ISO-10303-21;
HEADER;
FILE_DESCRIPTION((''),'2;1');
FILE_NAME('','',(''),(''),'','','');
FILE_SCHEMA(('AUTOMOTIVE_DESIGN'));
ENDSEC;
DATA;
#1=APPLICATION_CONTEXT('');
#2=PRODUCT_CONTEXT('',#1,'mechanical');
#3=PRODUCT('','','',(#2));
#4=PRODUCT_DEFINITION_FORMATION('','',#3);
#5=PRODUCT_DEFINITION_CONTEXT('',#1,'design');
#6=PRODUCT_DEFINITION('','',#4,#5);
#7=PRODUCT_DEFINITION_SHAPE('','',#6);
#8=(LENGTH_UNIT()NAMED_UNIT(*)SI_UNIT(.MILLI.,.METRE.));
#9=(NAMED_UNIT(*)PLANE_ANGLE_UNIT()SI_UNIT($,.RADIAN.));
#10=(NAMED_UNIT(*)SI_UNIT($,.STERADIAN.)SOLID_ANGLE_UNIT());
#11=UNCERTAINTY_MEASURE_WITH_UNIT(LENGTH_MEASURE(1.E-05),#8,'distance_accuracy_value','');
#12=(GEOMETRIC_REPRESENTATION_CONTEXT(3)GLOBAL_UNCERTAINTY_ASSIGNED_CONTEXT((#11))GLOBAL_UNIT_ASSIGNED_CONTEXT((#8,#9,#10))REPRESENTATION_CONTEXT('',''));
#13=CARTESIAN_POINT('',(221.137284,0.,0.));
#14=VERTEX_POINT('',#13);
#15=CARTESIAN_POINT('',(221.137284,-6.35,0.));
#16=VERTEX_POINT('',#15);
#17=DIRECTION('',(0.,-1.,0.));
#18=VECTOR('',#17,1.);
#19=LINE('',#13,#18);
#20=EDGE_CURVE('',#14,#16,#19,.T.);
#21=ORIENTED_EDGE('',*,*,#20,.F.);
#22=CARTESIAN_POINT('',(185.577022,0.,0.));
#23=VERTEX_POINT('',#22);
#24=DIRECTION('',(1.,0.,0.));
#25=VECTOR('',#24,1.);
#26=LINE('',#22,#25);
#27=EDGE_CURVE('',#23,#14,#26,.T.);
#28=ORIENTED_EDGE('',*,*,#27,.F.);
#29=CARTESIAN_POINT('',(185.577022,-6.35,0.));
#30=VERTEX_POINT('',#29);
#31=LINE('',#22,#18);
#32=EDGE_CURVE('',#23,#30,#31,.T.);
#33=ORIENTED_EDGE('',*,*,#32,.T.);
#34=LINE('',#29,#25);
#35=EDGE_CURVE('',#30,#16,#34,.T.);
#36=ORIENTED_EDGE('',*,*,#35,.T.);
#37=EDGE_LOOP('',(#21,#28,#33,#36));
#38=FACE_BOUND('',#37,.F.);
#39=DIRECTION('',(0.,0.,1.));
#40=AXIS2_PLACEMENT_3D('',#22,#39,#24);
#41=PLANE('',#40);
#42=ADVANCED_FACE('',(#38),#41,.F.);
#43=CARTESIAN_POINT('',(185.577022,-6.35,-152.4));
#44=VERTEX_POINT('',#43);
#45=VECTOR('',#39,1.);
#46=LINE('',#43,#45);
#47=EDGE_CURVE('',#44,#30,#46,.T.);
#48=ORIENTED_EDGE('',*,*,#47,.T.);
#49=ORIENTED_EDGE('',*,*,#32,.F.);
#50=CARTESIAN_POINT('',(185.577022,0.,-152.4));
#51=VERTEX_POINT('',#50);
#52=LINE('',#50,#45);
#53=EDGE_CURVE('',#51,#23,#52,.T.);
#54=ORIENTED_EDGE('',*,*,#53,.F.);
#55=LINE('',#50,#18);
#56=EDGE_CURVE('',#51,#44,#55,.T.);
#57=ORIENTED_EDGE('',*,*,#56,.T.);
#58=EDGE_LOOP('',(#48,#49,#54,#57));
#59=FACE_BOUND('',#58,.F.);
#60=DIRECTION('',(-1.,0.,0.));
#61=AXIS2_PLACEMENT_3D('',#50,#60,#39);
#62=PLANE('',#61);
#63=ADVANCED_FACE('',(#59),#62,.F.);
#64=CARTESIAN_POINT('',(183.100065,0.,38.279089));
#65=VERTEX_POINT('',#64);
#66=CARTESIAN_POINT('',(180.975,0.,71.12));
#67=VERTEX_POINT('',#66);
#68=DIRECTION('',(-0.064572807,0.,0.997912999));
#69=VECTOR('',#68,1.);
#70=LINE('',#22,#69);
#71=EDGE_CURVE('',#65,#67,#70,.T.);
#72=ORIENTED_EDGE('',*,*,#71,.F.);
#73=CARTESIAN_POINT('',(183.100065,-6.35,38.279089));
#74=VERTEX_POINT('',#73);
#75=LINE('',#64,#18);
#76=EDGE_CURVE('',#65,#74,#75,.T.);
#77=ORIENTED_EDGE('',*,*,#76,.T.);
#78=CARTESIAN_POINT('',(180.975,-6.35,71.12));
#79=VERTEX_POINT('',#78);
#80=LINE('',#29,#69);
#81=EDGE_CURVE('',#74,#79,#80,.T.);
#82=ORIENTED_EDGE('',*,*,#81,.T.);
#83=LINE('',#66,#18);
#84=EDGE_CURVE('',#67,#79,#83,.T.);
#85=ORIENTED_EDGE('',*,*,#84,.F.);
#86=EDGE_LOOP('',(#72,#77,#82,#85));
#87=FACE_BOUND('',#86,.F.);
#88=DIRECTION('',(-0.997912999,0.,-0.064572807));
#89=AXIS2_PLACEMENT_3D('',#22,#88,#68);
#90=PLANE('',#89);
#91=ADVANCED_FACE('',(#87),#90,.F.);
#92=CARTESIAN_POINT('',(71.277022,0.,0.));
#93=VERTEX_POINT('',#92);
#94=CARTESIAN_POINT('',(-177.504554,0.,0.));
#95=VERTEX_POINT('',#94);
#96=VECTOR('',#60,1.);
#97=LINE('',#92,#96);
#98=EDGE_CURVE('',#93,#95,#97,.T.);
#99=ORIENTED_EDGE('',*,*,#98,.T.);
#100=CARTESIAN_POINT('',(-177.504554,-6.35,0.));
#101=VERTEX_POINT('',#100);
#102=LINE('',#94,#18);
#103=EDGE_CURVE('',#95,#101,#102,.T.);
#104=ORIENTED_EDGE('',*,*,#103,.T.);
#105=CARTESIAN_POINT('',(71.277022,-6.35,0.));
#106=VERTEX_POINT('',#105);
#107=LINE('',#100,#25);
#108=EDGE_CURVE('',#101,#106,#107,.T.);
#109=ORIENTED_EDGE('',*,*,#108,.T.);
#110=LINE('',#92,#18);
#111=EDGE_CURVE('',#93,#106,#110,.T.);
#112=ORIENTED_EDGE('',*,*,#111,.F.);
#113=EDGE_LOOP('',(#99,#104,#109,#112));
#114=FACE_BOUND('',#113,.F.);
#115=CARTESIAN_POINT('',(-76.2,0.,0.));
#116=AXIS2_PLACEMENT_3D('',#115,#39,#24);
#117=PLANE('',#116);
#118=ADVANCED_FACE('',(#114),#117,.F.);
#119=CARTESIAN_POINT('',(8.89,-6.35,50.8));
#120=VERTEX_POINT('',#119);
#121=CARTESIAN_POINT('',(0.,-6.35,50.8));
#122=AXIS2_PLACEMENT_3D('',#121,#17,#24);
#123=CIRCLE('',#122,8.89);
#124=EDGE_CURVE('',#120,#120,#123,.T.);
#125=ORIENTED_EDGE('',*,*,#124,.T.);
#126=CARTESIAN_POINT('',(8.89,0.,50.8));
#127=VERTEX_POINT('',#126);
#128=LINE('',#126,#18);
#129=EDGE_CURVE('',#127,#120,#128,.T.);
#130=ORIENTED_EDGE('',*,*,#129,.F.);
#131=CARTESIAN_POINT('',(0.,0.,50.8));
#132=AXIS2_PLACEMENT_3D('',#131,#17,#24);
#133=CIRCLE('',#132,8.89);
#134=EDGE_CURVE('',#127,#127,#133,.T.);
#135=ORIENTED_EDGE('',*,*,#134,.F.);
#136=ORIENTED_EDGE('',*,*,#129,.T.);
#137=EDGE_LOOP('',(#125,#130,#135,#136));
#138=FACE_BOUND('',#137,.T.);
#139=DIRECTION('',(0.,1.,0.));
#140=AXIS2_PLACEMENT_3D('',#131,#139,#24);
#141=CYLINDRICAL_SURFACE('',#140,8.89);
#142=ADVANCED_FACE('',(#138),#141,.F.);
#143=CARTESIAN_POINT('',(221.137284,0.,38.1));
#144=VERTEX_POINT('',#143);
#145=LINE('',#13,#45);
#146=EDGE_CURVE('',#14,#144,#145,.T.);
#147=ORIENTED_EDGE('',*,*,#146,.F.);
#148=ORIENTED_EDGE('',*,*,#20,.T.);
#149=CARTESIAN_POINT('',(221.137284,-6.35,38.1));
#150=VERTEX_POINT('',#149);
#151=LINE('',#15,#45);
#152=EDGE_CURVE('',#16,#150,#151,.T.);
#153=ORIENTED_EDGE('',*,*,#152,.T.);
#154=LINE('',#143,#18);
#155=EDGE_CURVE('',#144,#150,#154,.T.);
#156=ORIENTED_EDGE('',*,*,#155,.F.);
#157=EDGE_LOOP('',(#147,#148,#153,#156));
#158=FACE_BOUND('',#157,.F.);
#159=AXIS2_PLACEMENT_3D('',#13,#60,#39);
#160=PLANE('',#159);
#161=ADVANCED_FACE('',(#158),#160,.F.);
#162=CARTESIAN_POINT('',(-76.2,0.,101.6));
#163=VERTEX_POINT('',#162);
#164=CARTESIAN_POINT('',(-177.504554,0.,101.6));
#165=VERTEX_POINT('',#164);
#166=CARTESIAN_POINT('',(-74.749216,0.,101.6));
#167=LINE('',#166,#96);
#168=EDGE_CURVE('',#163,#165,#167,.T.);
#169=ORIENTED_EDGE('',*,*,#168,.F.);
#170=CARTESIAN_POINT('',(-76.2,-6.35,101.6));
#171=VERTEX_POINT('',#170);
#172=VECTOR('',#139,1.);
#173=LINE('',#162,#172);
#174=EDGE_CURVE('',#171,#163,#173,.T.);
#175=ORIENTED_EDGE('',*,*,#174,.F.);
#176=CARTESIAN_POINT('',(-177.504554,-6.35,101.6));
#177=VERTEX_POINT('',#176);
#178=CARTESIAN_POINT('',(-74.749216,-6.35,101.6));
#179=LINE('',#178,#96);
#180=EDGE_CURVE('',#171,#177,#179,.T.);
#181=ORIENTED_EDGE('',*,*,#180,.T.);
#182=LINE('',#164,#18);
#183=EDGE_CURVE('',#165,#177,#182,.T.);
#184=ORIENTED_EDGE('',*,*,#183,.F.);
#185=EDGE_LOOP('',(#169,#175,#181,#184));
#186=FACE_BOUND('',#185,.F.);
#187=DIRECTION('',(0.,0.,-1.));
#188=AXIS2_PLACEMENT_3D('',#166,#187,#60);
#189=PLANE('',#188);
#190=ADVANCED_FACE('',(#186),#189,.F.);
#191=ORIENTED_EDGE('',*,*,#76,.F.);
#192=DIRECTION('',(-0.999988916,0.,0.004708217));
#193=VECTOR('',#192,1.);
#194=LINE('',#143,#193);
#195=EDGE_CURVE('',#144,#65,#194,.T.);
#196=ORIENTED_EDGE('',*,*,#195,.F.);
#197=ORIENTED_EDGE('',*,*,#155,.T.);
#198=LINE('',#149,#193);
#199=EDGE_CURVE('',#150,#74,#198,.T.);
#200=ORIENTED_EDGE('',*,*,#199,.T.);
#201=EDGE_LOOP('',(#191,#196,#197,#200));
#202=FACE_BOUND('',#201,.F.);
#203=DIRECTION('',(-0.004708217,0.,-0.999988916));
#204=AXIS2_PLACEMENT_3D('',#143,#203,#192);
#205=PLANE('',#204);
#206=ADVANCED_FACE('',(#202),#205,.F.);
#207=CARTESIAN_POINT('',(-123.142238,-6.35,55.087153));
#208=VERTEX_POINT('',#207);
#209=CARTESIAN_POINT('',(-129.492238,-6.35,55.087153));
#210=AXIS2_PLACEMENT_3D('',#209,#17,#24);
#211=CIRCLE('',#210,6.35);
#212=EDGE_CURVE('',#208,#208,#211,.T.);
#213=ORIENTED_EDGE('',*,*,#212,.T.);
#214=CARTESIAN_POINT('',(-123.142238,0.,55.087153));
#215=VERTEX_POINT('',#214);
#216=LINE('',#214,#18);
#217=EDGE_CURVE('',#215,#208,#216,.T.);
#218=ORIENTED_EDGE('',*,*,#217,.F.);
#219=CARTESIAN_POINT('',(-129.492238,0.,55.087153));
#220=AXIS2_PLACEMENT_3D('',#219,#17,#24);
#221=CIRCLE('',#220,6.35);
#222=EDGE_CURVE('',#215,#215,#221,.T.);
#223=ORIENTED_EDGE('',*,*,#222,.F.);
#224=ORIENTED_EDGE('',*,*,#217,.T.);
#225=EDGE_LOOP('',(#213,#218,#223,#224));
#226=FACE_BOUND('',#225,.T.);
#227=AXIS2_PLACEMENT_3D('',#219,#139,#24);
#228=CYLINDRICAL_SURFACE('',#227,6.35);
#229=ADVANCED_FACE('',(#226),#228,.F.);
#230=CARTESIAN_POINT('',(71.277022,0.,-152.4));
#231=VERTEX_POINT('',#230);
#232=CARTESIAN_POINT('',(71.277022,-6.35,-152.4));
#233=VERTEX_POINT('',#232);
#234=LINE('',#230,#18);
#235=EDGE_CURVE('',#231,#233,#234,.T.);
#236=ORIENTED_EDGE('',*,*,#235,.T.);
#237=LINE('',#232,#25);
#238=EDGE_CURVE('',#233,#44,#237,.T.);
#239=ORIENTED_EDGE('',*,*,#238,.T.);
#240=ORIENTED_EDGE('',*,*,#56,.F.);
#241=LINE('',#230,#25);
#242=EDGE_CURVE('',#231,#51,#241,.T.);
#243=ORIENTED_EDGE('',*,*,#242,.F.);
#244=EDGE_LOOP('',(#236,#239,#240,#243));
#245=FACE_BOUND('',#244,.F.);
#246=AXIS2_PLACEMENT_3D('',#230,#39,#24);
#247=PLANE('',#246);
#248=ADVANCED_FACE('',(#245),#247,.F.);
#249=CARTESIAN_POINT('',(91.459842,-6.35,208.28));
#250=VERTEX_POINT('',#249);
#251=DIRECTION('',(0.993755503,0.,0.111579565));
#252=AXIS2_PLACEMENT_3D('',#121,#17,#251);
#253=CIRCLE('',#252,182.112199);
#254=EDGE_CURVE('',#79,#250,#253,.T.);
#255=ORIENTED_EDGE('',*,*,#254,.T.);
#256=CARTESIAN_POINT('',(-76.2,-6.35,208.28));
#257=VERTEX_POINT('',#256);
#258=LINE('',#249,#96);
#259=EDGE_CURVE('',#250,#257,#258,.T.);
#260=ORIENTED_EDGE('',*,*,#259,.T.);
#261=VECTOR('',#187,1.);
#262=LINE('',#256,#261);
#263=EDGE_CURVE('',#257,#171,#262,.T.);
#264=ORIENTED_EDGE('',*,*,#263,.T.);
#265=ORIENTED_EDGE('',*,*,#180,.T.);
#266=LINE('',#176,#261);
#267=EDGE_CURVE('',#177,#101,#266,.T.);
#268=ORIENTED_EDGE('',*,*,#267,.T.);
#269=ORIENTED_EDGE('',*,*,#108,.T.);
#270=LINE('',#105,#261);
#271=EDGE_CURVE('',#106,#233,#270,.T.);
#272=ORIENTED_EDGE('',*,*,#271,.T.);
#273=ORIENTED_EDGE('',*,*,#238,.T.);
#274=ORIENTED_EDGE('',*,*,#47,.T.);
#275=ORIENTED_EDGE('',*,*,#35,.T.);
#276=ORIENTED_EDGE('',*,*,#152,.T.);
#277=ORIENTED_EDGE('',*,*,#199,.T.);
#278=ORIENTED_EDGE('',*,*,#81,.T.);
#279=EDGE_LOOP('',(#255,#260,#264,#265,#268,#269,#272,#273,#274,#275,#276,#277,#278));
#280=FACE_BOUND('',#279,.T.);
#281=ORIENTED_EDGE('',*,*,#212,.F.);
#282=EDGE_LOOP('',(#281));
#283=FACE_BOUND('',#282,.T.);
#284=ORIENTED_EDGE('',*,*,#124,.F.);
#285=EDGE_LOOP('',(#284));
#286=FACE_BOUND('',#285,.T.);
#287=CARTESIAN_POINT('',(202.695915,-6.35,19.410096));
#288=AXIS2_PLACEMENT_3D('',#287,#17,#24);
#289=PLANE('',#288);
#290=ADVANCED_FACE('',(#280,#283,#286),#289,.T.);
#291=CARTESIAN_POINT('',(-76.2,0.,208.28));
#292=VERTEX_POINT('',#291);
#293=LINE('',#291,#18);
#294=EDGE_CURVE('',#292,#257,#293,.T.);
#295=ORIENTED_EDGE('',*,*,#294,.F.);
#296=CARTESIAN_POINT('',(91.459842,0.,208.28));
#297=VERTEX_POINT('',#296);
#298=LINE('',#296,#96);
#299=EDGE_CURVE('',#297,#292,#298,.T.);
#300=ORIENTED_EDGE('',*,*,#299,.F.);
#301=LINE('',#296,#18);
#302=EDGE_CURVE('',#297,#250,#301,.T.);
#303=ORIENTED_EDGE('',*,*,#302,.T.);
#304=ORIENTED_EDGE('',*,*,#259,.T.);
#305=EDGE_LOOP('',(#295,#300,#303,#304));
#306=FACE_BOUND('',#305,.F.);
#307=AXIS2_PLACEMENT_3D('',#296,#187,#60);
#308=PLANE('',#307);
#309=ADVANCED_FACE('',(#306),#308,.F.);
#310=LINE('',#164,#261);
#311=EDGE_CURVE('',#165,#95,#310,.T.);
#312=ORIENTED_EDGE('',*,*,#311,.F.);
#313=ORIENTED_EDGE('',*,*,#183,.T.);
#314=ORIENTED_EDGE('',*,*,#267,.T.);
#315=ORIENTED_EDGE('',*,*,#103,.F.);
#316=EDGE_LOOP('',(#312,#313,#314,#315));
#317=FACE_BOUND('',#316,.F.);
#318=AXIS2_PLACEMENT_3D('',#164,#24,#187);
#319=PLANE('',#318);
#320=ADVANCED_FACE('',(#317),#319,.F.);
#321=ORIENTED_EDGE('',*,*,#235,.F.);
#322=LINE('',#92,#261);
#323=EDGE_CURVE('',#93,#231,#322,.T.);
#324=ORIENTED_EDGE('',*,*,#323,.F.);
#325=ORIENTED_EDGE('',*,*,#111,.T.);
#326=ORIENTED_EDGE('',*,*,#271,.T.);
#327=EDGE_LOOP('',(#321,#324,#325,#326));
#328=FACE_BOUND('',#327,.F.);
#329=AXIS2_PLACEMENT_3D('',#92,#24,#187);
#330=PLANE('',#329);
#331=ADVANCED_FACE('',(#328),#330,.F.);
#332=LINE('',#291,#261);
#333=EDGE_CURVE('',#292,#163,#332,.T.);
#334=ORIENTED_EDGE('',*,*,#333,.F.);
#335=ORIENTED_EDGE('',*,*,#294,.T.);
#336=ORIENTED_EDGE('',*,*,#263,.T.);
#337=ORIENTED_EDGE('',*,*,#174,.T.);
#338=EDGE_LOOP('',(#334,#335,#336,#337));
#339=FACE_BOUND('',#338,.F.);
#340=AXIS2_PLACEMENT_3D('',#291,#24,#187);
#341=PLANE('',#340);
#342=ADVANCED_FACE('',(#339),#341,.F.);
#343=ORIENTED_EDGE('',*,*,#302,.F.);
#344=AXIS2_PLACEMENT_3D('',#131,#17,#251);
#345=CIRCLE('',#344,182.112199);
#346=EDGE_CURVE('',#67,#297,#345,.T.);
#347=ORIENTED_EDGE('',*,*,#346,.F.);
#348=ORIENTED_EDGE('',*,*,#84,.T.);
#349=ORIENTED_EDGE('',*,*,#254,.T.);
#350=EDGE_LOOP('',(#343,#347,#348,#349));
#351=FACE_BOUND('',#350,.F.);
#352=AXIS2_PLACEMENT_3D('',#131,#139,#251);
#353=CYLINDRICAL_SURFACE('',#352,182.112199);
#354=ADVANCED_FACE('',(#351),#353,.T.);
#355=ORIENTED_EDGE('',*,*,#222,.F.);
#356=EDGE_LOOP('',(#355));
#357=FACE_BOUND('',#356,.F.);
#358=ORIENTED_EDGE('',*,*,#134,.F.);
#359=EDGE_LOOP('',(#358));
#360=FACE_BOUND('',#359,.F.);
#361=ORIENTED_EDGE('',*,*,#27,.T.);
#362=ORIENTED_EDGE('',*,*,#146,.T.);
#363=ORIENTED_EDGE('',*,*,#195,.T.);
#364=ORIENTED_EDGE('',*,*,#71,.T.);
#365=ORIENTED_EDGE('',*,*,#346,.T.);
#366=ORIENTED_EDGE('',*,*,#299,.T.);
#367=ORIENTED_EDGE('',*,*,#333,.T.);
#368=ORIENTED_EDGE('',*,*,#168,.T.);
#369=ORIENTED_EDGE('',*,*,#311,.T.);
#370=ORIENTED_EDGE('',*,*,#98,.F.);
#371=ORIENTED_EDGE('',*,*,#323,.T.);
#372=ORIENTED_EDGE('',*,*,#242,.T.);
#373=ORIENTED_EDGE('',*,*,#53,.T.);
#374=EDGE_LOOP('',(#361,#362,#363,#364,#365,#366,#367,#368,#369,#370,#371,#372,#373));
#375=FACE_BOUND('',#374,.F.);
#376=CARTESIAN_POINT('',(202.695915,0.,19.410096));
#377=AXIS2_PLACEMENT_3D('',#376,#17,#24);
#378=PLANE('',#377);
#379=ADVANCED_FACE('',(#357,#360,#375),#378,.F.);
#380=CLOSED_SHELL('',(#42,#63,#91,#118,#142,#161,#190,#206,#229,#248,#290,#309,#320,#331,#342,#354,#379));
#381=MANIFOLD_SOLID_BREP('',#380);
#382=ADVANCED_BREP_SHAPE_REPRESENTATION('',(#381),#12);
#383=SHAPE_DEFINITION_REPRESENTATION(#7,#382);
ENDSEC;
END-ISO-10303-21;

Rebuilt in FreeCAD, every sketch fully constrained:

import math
import FreeCAD as App
import Part
import Sketcher
from FreeCAD import Vector
Q = App.Units.Quantity


def add_polygon(sketch, points):
    """Adds a closed chain of lines whose ends are joined by coincident constraints."""
    first, n = sketch.GeometryCount, len(points)
    for a, b in zip(points, points[1:] + points[:1]):
        sketch.addGeometry(Part.LineSegment(App.Vector(*a, 0), App.Vector(*b, 0)), False)
    for i in range(n):
        sketch.addConstraint(Sketcher.Constraint("Coincident", first + i, 2, first + (i + 1) % n, 1))

doc = App.newDocument("Part")
body = doc.addObject("PartDesign::Body", "Body")

# Sketch on XZ plane
sketch1 = doc.addObject("Sketcher::SketchObject", "Sketch")
body.addObject(sketch1)
sketch1.AttachmentSupport = (doc.XZ_Plane, [""])
sketch1.MapMode = "FlatFace"
sketch1.addGeometry([
    Part.LineSegment(Vector(186, 0, 0), Vector(181, 71, 0)),  # 0
    Part.ArcOfCircle(Part.Circle(Vector(0, 51, 0), Vector(0, 0, 1), 182), math.radians(6), math.radians(60)),  # 1
    Part.LineSegment(Vector(91, 208, 0), Vector(-76, 208, 0)),  # 2
    Part.LineSegment(Vector(-76, 208, 0), Vector(-76, 0, 0)),  # 3
    Part.LineSegment(Vector(-76, 0, 0), Vector(71, 0, 0)),  # 4
    Part.LineSegment(Vector(71, 0, 0), Vector(71, -152, 0)),  # 5
    Part.LineSegment(Vector(71, -152, 0), Vector(186, -152, 0)),  # 6
    Part.LineSegment(Vector(186, -152, 0), Vector(186, 0, 0)),  # 7
    Part.Circle(Vector(0, 51, 0), Vector(0, 0, 1), 9),  # 8
], False)
sketch1.addConstraint([
    Sketcher.Constraint("Coincident", 0, 2, 1, 1),
    Sketcher.Constraint("Coincident", 1, 2, 2, 1),
    Sketcher.Constraint("Coincident", 2, 2, 3, 1),
    Sketcher.Constraint("Coincident", 3, 2, 4, 1),
    Sketcher.Constraint("Coincident", 4, 2, 5, 1),
    Sketcher.Constraint("Coincident", 5, 2, 6, 1),
    Sketcher.Constraint("Coincident", 6, 2, 7, 1),
    Sketcher.Constraint("Coincident", 7, 2, 0, 1),
    Sketcher.Constraint("Horizontal", 2),
    Sketcher.Constraint("Vertical", 3),
    Sketcher.Constraint("Horizontal", 4),
    Sketcher.Constraint("Vertical", 5),
    Sketcher.Constraint("Horizontal", 6),
    Sketcher.Constraint("Vertical", 7),
    Sketcher.Constraint("Coincident", 8, 3, 1, 3),
    Sketcher.Constraint("PointOnObject", 1, 3, -2),
    Sketcher.Constraint("PointOnObject", 3, 2, -1),
    Sketcher.Constraint("PointOnObject", 7, 2, -1),
    Sketcher.Constraint("Diameter", 8, Q("0.7 in")),
    Sketcher.Constraint("DistanceY", 5, 2, 5, 1, Q("6 in")),
    Sketcher.Constraint("DistanceX", 6, 1, 6, 2, Q("4.5 in")),
    Sketcher.Constraint("DistanceY", 3, 2, 3, 1, Q("8.2 in")),
    Sketcher.Constraint("DistanceY", -1, 1, 1, 3, Q("2 in")),
    Sketcher.Constraint("DistanceX", 2, 2, -1, 1, Q("3 in")),
    Sketcher.Constraint("DistanceY", -1, 1, 0, 2, Q("2.8 in")),
    Sketcher.Constraint("Radius", 1, Q("182.112199 mm")),
    Sketcher.Constraint("DistanceX", 4, 1, 4, 2, Q("147.477022 mm")),
])
pad1 = doc.addObject("PartDesign::Pad", "Pad")
body.addObject(pad1)
pad1.Profile = sketch1
pad1.Length = Q("0.25 in")

# Sketch on XZ plane
sketch2 = doc.addObject("Sketcher::SketchObject", "Sketch001")
body.addObject(sketch2)
sketch2.AttachmentSupport = (doc.XZ_Plane, [""])
sketch2.MapMode = "FlatFace"
add_polygon(sketch2, [(183.100065, 38.279089), (185.577022, 0), (221.137284, 0), (221.137284, 38.1)])  # lines 0-3
add_polygon(sketch2, [(-177.504554, 0), (-75.904554, 0), (-74.749216, 101.6), (-177.504554, 101.6)])  # lines 4-7
sketch2.addGeometry(Part.Circle(Vector(-129.492238, 55.087153, 0), Vector(0, 0, 1), 6.35), False)  # 8
sketch2.addConstraint([
    Sketcher.Constraint("Horizontal", 1),
    Sketcher.Constraint("Vertical", 2),
    Sketcher.Constraint("Horizontal", 4),
    Sketcher.Constraint("Horizontal", 6),
    Sketcher.Constraint("Vertical", 7),
    Sketcher.Constraint("PointOnObject", 0, 2, -1),
    Sketcher.Constraint("PointOnObject", 4, 2, -1),
    Sketcher.Constraint("Equal", 4, 7),
    Sketcher.Constraint("Diameter", 8, Q("0.5 in")),
    Sketcher.Constraint("DistanceX", 4, 1, 4, 2, Q("4 in")),
    Sketcher.Constraint("DistanceY", 2, 1, 2, 2, Q("1.5 in")),
    Sketcher.Constraint("DistanceX", 1, 1, 1, 2, Q("35.560261 mm")),
    Sketcher.Constraint("DistanceX", 5, 2, 2, 2, Q("295.8865 mm")),
    Sketcher.Constraint("Distance", 3, Q("38.037641 mm")),
    Sketcher.Constraint("Distance", 5, Q("101.606569 mm")),
    Sketcher.Constraint("DistanceX", 8, 3, -1, 1, Q("129.492238 mm")),
    Sketcher.Constraint("DistanceY", -1, 1, 3, 2, Q("38.279089 mm")),
    Sketcher.Constraint("DistanceX", 8, 3, 0, 2, Q("315.069261 mm")),
    Sketcher.Constraint("DistanceY", -1, 1, 8, 3, Q("55.087153 mm")),
])
pad2 = doc.addObject("PartDesign::Pad", "Pad001")
body.addObject(pad2)
pad2.Profile = sketch2
pad2.Length = Q("0.25 in")

doc.recompute()
